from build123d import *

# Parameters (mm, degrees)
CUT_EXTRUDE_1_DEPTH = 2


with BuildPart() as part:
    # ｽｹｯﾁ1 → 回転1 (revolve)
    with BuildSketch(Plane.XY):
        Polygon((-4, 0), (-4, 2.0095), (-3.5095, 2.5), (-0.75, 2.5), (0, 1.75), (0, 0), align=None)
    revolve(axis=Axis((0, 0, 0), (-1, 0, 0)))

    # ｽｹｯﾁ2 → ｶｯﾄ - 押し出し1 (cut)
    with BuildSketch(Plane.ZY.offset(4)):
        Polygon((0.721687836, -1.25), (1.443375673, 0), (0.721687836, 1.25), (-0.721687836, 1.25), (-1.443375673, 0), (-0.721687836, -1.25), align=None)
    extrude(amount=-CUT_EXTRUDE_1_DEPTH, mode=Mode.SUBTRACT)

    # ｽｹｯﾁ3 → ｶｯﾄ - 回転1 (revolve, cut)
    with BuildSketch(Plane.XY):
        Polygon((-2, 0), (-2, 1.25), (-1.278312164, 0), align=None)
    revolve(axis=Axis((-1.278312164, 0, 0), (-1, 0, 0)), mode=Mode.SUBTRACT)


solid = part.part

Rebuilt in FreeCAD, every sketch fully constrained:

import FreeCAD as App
import Part
import Sketcher
from FreeCAD import Vector
Q = App.Units.Quantity

doc = App.newDocument("Part")
body = doc.addObject("PartDesign::Body", "Body")

sketch1 = body.newObject("Sketcher::SketchObject", "Sketch")
sketch1.AttachmentSupport = (doc.getObject("XY_Plane"), [""])
sketch1.MapMode = "FlatFace"
sketch1.addGeometry([
    Part.LineSegment(Vector(-4, 2.0095, 0), Vector(-4, 0, 0)),
    Part.LineSegment(Vector(-4, 0, 0), Vector(0, 0, 0)),
    Part.LineSegment(Vector(0, 0, 0), Vector(0, 1.75, 0)),
    Part.LineSegment(Vector(0, 1.75, 0), Vector(-0.75, 2.5, 0)),
    Part.LineSegment(Vector(-0.75, 2.5, 0), Vector(-3.5095, 2.5, 0)),
    Part.LineSegment(Vector(-3.5095, 2.5, 0), Vector(-4, 2.0095, 0)),
], False)
sketch1.addConstraint([
    Sketcher.Constraint("Coincident", 0, 2, 1, 1),
    Sketcher.Constraint("Coincident", 1, 2, 2, 1),
    Sketcher.Constraint("Coincident", 2, 2, 3, 1),
    Sketcher.Constraint("Coincident", 3, 2, 4, 1),
    Sketcher.Constraint("Coincident", 4, 2, 5, 1),
    Sketcher.Constraint("Coincident", 5, 2, 0, 1),
    Sketcher.Constraint("Vertical", 0),
    Sketcher.Constraint("Horizontal", 1),
    Sketcher.Constraint("Vertical", 2),
    Sketcher.Constraint("Horizontal", 4),
    Sketcher.Constraint("Coincident", 1, 2, -1, 1),
    Sketcher.Constraint("Perpendicular", 3, 5),
    Sketcher.Constraint("DistanceX", 1, 1, 1, 2, 4.0),
    Sketcher.Constraint("Angle", 3, Q("135 deg")),
    Sketcher.Constraint("DistanceY", 2, 1, 2, 2, 1.75),
    Sketcher.Constraint("DistanceY", -1, 1, 3, 2, 2.5),
    Sketcher.Constraint("DistanceX", 4, 2, 4, 1, 2.7595),
])
revolution = body.newObject("PartDesign::Revolution", "Revolution")
revolution.Profile = sketch1
revolution.ReferenceAxis = (sketch1, ["H_Axis"])
revolution.Angle = 360

sketch2 = body.newObject("Sketcher::SketchObject", "Sketch001")
sketch2.AttachmentSupport = (doc.getObject("YZ_Plane"), [""])
sketch2.MapMode = "FlatFace"
sketch2.AttachmentOffset = App.Placement(Vector(0, 0, -4), App.Rotation())
sketch2.addGeometry([
    Part.LineSegment(Vector(-1.25, 0.721688, 0), Vector(0, 1.443376, 0)),
    Part.LineSegment(Vector(0, 1.443376, 0), Vector(1.25, 0.721688, 0)),
    Part.LineSegment(Vector(1.25, 0.721688, 0), Vector(1.25, -0.721688, 0)),
    Part.LineSegment(Vector(1.25, -0.721688, 0), Vector(0, -1.443376, 0)),
    Part.LineSegment(Vector(0, -1.443376, 0), Vector(-1.25, -0.721688, 0)),
    Part.LineSegment(Vector(-1.25, -0.721688, 0), Vector(-1.25, 0.721688, 0)),
], False)
sketch2.addConstraint([
    Sketcher.Constraint("Coincident", 0, 2, 1, 1),
    Sketcher.Constraint("Coincident", 1, 2, 2, 1),
    Sketcher.Constraint("Coincident", 2, 2, 3, 1),
    Sketcher.Constraint("Coincident", 3, 2, 4, 1),
    Sketcher.Constraint("Coincident", 4, 2, 5, 1),
    Sketcher.Constraint("Coincident", 5, 2, 0, 1),
    Sketcher.Constraint("Vertical", 2),
    Sketcher.Constraint("Vertical", 5),
    Sketcher.Constraint("Symmetric", 0, 2, 3, 2, -1, 1),
    Sketcher.Constraint("Symmetric", 1, 2, 4, 2, -1, 1),
    Sketcher.Constraint("PointOnObject", 0, 2, -2),
    Sketcher.Constraint("Parallel", 0, 3),
    Sketcher.Constraint("Horizontal", 2, 2, 4, 2),
    Sketcher.Constraint("Angle", 0, Q("30 deg")),
    Sketcher.Constraint("DistanceX", 4, 2, 2, 2, 2.5),
    Sketcher.Constraint("DistanceY", 2, 2, 2, 1, 1.443376),
])
pocket1 = body.newObject("PartDesign::Pocket", "Pocket")
pocket1.Profile = sketch2
pocket1.Length = 2
pocket1.Reversed = True

sketch3 = body.newObject("Sketcher::SketchObject", "Sketch002")
sketch3.AttachmentSupport = (doc.getObject("XY_Plane"), [""])
sketch3.MapMode = "FlatFace"
sketch3.addGeometry([
    Part.LineSegment(Vector(-2, 1.25, 0), Vector(-2, 0, 0)),
    Part.LineSegment(Vector(-2, 0, 0), Vector(-1.278312, 0, 0)),
    Part.LineSegment(Vector(-1.278312, 0, 0), Vector(-2, 1.25, 0)),
], False)
sketch3.addConstraint([
    Sketcher.Constraint("Coincident", 0, 2, 1, 1),
    Sketcher.Constraint("Coincident", 1, 2, 2, 1),
    Sketcher.Constraint("Coincident", 2, 2, 0, 1),
    Sketcher.Constraint("Vertical", 0),
    Sketcher.Constraint("Horizontal", 1),
    Sketcher.Constraint("PointOnObject", 0, 2, -1),
    Sketcher.Constraint("Angle", 2, Q("120 deg")),
    Sketcher.Constraint("DistanceX", 0, 2, -1, 1, 2.0),
    Sketcher.Constraint("DistanceY", 0, 2, 0, 1, 1.25),
])
groove = body.newObject("PartDesign::Groove", "Groove")
groove.Profile = sketch3
groove.ReferenceAxis = (sketch3, ["H_Axis"])
groove.Angle = 360

doc.recompute()
